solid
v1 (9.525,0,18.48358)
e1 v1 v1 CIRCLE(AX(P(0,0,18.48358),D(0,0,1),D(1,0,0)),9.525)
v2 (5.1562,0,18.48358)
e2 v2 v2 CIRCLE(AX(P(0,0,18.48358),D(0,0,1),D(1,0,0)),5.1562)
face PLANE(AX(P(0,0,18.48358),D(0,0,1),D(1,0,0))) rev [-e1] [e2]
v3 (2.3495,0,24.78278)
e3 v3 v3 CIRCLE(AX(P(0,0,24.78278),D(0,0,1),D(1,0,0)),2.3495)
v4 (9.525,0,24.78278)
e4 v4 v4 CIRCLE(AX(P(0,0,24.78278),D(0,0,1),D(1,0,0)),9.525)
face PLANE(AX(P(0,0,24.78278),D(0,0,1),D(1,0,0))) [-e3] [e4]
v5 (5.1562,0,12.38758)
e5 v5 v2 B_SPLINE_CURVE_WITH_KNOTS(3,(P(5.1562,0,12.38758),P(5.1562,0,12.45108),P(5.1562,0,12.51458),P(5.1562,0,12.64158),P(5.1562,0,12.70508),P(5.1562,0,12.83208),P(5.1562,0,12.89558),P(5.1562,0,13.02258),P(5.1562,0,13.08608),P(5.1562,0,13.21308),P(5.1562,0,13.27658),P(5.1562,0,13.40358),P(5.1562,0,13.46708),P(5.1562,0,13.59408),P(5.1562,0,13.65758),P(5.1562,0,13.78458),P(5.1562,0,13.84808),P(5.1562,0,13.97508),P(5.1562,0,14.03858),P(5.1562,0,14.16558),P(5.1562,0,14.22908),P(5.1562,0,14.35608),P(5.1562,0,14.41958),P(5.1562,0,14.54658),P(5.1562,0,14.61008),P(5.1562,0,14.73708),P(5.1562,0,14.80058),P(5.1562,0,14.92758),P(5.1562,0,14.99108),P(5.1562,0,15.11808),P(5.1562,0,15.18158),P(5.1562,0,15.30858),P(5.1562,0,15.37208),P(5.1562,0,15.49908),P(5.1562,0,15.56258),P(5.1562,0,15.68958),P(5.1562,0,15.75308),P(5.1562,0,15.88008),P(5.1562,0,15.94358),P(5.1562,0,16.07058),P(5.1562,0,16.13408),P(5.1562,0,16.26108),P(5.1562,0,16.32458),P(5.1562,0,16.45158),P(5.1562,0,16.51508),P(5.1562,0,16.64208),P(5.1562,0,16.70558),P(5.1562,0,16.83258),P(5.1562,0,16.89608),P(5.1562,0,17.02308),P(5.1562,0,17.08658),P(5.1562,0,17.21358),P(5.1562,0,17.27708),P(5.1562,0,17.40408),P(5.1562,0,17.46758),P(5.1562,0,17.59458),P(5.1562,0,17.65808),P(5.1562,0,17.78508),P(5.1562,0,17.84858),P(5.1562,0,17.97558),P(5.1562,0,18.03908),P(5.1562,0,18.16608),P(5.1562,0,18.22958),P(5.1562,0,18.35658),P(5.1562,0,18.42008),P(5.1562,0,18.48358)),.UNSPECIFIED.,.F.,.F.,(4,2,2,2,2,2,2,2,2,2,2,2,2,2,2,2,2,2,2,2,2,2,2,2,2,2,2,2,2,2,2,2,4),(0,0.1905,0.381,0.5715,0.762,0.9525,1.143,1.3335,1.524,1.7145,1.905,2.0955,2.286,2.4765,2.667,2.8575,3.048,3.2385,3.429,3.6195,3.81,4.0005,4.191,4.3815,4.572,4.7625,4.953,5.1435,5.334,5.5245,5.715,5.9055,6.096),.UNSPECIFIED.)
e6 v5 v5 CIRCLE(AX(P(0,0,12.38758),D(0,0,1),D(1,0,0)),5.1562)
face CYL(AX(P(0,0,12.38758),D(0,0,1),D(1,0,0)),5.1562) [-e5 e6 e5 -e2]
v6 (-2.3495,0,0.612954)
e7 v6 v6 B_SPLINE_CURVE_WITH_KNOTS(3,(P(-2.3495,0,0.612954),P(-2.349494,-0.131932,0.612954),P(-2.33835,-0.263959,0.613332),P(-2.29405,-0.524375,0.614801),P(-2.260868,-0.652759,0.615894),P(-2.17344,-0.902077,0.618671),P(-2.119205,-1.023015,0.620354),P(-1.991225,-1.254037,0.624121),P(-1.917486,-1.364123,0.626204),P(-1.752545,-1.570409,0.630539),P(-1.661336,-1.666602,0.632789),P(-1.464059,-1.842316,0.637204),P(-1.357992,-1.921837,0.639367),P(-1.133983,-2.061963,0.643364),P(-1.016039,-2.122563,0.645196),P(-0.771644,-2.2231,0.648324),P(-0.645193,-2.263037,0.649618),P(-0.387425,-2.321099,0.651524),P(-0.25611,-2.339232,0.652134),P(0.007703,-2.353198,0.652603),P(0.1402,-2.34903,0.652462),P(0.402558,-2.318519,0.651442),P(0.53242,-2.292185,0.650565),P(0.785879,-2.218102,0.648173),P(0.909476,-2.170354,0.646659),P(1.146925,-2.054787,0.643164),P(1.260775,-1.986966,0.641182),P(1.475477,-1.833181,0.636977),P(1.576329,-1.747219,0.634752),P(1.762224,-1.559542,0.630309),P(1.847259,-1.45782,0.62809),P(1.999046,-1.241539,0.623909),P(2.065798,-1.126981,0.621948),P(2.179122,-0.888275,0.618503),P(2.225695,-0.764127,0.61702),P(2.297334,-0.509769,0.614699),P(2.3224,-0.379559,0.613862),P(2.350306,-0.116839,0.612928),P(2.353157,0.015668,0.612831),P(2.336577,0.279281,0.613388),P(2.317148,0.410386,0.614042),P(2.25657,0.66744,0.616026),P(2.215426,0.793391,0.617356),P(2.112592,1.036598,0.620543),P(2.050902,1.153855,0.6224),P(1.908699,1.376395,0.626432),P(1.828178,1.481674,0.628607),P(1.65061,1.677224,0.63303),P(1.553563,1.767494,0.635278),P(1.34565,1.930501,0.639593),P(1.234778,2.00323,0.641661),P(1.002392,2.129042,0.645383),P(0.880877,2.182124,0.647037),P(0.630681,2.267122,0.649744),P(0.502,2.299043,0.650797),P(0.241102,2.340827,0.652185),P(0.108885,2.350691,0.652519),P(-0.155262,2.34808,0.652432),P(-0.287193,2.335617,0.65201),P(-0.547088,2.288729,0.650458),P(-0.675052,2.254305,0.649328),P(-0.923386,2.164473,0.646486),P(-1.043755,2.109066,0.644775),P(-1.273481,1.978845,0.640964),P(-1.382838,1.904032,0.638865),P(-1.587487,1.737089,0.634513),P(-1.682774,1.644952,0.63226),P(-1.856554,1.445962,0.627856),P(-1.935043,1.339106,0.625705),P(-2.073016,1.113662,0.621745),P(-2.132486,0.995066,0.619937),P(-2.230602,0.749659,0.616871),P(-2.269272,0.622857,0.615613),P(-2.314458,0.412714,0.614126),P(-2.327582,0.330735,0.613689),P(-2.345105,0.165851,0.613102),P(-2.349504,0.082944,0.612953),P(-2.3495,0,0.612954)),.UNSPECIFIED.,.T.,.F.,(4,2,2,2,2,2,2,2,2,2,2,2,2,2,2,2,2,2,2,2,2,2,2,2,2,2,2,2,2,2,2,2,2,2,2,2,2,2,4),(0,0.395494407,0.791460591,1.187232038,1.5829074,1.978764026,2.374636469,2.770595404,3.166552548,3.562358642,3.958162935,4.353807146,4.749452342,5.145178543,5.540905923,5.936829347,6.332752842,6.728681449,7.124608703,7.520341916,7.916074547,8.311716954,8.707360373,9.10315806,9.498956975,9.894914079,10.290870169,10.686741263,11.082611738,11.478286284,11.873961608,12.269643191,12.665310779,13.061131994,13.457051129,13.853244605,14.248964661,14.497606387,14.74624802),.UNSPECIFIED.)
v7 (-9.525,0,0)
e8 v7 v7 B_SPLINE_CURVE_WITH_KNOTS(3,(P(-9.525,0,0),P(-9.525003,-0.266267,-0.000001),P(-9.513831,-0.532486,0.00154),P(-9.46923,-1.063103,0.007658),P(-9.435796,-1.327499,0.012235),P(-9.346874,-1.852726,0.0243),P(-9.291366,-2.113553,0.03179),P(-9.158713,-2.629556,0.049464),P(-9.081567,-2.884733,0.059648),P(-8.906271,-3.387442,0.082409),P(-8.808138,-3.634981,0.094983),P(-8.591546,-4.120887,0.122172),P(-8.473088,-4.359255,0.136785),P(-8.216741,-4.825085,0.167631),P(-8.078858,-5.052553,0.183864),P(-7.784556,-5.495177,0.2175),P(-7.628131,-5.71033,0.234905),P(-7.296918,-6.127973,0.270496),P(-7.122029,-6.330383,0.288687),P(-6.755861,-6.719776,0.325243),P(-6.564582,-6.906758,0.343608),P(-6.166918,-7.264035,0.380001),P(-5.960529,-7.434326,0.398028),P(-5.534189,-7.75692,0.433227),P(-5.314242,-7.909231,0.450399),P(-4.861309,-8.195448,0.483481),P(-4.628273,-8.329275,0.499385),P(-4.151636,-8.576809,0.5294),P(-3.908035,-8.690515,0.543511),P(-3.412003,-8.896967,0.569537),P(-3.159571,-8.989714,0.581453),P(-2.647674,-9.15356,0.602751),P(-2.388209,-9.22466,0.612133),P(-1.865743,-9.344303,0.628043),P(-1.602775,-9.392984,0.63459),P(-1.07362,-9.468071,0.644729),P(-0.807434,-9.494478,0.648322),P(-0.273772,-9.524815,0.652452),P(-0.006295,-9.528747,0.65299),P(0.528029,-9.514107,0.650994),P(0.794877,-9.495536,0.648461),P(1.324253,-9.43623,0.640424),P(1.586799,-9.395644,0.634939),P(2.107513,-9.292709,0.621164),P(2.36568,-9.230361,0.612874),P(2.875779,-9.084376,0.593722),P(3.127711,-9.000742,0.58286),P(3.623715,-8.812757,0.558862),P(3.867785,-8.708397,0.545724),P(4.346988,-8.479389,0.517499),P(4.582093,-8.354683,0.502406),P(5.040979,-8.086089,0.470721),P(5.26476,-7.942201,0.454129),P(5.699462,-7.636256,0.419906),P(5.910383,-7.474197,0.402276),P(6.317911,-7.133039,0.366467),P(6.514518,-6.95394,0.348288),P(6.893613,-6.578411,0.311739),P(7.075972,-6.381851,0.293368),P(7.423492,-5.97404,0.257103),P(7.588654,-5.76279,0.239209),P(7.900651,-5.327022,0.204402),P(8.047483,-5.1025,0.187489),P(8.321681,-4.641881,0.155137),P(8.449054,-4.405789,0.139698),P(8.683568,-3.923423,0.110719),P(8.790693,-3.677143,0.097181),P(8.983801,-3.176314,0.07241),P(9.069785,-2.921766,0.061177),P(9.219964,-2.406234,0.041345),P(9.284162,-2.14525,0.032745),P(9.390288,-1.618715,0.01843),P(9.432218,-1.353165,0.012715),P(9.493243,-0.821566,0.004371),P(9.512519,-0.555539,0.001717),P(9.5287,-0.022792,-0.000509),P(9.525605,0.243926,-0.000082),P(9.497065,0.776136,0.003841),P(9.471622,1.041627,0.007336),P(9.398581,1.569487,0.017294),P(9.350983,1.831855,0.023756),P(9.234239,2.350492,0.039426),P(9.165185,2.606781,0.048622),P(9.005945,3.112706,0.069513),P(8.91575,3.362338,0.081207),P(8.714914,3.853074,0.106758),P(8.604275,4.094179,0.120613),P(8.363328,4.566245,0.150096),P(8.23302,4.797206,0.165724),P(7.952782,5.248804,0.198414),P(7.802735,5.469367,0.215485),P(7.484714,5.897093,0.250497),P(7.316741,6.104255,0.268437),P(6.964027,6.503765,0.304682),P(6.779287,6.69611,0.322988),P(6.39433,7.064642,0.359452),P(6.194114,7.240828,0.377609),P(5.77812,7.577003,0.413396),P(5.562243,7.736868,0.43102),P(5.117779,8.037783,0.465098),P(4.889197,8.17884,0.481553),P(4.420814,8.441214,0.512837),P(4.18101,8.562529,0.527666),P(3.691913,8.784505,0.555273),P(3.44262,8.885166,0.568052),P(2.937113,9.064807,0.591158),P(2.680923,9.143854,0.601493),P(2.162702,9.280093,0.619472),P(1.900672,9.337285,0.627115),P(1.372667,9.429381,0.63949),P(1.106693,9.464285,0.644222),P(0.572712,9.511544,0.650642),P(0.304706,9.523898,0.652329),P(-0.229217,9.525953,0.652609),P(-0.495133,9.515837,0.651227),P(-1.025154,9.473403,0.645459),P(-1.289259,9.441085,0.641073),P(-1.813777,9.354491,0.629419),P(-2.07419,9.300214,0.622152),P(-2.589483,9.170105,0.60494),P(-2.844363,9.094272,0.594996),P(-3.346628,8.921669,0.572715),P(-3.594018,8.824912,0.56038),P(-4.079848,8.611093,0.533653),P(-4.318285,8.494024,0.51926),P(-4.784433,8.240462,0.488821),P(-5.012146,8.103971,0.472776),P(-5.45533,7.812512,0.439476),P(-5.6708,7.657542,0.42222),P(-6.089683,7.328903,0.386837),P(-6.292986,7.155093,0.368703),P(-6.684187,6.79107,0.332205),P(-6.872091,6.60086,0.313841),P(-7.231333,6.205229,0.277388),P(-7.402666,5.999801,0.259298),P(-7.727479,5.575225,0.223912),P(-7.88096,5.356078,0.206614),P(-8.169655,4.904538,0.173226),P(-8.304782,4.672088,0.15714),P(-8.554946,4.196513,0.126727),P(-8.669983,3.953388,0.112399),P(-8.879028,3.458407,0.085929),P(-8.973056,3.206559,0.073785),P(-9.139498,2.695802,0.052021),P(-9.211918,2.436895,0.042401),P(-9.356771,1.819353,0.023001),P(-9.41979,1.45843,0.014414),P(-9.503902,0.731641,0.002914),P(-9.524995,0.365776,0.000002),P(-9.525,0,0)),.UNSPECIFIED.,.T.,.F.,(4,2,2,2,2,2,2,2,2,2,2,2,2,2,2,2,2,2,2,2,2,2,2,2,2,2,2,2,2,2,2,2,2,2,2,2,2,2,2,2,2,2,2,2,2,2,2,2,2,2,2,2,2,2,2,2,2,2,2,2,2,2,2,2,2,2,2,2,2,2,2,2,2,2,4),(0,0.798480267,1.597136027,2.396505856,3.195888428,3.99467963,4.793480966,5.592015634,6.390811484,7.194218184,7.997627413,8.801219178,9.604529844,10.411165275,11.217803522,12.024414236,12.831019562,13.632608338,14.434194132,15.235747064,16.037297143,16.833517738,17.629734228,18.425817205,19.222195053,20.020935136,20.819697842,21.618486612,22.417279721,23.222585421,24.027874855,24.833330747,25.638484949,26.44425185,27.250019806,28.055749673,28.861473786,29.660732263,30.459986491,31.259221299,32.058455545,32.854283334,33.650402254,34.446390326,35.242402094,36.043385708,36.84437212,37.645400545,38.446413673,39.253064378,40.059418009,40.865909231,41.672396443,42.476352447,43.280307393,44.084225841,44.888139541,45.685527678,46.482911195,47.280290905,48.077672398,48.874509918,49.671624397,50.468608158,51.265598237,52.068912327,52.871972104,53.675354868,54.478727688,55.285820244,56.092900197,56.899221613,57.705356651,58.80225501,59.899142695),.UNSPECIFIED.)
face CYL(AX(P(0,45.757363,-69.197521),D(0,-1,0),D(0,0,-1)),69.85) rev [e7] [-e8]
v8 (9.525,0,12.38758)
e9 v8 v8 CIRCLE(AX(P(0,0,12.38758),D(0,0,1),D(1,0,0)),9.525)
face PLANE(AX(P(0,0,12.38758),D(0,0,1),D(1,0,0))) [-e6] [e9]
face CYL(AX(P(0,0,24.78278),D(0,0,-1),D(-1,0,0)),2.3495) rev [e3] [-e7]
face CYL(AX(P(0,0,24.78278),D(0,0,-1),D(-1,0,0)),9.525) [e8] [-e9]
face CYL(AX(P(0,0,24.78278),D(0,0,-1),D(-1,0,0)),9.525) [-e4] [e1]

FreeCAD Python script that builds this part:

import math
import FreeCAD as App
import Part
import Sketcher

V = App.Vector
Q = App.Units.Quantity


def add_polygon(sketch, points):
    """Adds a closed chain of lines whose ends are joined by coincident constraints."""
    first, n = sketch.GeometryCount, len(points)
    for a, b in zip(points, points[1:] + points[:1]):
        sketch.addGeometry(Part.LineSegment(App.Vector(*a, 0), App.Vector(*b, 0)), False)
    for i in range(n):
        sketch.addConstraint(Sketcher.Constraint("Coincident", first + i, 2, first + (i + 1) % n, 1))

doc = App.newDocument("Part")
params = doc.addObject("Spreadsheet::Sheet", "Params")
for row, (alias, value) in enumerate([
    ("sketch1_diameter", "0.75 in"),
    ("sketch1_diameter2", "0.185 in"),
    ("pad1_length", "0.9757 in"),
    ("sketch2_diameter", "0.406 in"),
    ("pocket1_length", "0.24 in"),
    ("sketch3_radius", "2.75 in"),
], start=1):
    params.set(f"A{row}", alias)
    params.set(f"B{row}", "=" + value)
    params.setAlias(f"B{row}", alias)

body = doc.addObject("PartDesign::Body", "Body")

sketch1 = body.newObject("Sketcher::SketchObject", "Sketch")
sketch1.AttachmentSupport = (doc.getObject("XY_Plane"), [""])
sketch1.MapMode = "FlatFace"
sketch1.addGeometry(Part.Circle(V(0, 0, 0), V(0, 0, 1), 9.5), False)
sketch1.addGeometry(Part.Circle(V(0, 0, 0), V(0, 0, 1), 2.3), False)
sketch1.addConstraint(Sketcher.Constraint("Coincident", 0, 3, -1, 1))
sketch1.addConstraint(Sketcher.Constraint("Coincident", 1, 3, -1, 1))
sketch1.addConstraint(Sketcher.Constraint("Diameter", 0, Q("0.75 in")))
sketch1.addConstraint(Sketcher.Constraint("Diameter", 1, Q("0.185 in")))
sketch1.setExpression("Constraints[2]", "Params.sketch1_diameter")
sketch1.setExpression("Constraints[3]", "Params.sketch1_diameter2")
pad1 = body.newObject("PartDesign::Pad", "Pad")
pad1.Profile = sketch1
pad1.setExpression("Length", "Params.pad1_length")

sketch2 = body.newObject("Sketcher::SketchObject", "Sketch001")
sketch2.AttachmentSupport = (doc.getObject("XY_Plane"), [""])
sketch2.MapMode = "FlatFace"
sketch2.AttachmentOffset = App.Placement(V(0, 0, 0.7277 * 25.4), App.Rotation())
add_polygon(sketch2, [(-14, 14), (-14, -14), (14, -14), (14, 14)])
sketch2.addGeometry(Part.Circle(V(0, 0, 0), V(0, 0, 1), 5), False)
sketch2.addConstraint(Sketcher.Constraint("Vertical", 0))
sketch2.addConstraint(Sketcher.Constraint("Horizontal", 1))
sketch2.addConstraint(Sketcher.Constraint("Vertical", 2))
sketch2.addConstraint(Sketcher.Constraint("Horizontal", 3))
sketch2.addConstraint(Sketcher.Constraint("Coincident", 4, 3, -1, 1))
sketch2.addConstraint(Sketcher.Constraint("Symmetric", 0, 2, 2, 2, -1, 1))
sketch2.addConstraint(Sketcher.Constraint("Equal", 3, 0))
sketch2.addConstraint(Sketcher.Constraint("Diameter", 4, Q("0.406 in")))
sketch2.addConstraint(Sketcher.Constraint("DistanceX", 1, 1, 1, 2, 28.372))
sketch2.setExpression("Constraints[11]", "Params.sketch2_diameter")
pocket1 = body.newObject("PartDesign::Pocket", "Pocket")
pocket1.Profile = sketch2
pocket1.setExpression("Length", "Params.pocket1_length")

sketch3 = body.newObject("Sketcher::SketchObject", "Sketch002")
sketch3.AttachmentSupport = (doc.getObject("XZ_Plane"), [""])
sketch3.MapMode = "FlatFace"
sketch3.addGeometry(Part.LineSegment(V(10, 0, 0), V(81, -10, 0)), False)
sketch3.addGeometry(Part.LineSegment(V(81, -10, 0), V(81, -155, 0)), False)
sketch3.addGeometry(Part.LineSegment(V(81, -155, 0), V(-81, -155, 0)), False)
sketch3.addGeometry(Part.LineSegment(V(-81, -155, 0), V(-81, -10, 0)), False)
sketch3.addGeometry(Part.LineSegment(V(-81, -10, 0), V(-10, 0, 0)), False)
sketch3.addGeometry(Part.ArcOfCircle(Part.Circle(V(0, -69, 0), V(0, 0, 1), 70), math.radians(82.16), math.radians(97.84)), False)
sketch3.addConstraint(Sketcher.Constraint("Coincident", 0, 2, 1, 1))
sketch3.addConstraint(Sketcher.Constraint("Coincident", 1, 2, 2, 1))
sketch3.addConstraint(Sketcher.Constraint("Coincident", 2, 2, 3, 1))
sketch3.addConstraint(Sketcher.Constraint("Coincident", 3, 2, 4, 1))
sketch3.addConstraint(Sketcher.Constraint("Tangent", 4, 2, 5, 2))
sketch3.addConstraint(Sketcher.Constraint("Tangent", 5, 1, 0, 1))
sketch3.addConstraint(Sketcher.Constraint("Vertical", 1))
sketch3.addConstraint(Sketcher.Constraint("Horizontal", 2))
sketch3.addConstraint(Sketcher.Constraint("Vertical", 3))
sketch3.addConstraint(Sketcher.Constraint("Symmetric", 4, 2, 5, 1, -1, 1))
sketch3.addConstraint(Sketcher.Constraint("Symmetric", 0, 2, 3, 2, -2))
sketch3.addConstraint(Sketcher.Constraint("Radius", 5, Q("2.75 in")))
sketch3.addConstraint(Sketcher.Constraint("DistanceX", 4, 2, 5, 1, Q("0.75 in")))
sketch3.addConstraint(Sketcher.Constraint("DistanceX", 2, 2, 2, 1, 162.72889))
sketch3.addConstraint(Sketcher.Constraint("DistanceY", 1, 2, 1, 1, 145.033671))
sketch3.setExpression("Constraints[11]", "Params.sketch3_radius")
pocket2 = body.newObject("PartDesign::Pocket", "Pocket001")
pocket2.Profile = sketch3
pocket2.Type = "ThroughAll"
pocket2.Midplane = True

doc.recompute()
